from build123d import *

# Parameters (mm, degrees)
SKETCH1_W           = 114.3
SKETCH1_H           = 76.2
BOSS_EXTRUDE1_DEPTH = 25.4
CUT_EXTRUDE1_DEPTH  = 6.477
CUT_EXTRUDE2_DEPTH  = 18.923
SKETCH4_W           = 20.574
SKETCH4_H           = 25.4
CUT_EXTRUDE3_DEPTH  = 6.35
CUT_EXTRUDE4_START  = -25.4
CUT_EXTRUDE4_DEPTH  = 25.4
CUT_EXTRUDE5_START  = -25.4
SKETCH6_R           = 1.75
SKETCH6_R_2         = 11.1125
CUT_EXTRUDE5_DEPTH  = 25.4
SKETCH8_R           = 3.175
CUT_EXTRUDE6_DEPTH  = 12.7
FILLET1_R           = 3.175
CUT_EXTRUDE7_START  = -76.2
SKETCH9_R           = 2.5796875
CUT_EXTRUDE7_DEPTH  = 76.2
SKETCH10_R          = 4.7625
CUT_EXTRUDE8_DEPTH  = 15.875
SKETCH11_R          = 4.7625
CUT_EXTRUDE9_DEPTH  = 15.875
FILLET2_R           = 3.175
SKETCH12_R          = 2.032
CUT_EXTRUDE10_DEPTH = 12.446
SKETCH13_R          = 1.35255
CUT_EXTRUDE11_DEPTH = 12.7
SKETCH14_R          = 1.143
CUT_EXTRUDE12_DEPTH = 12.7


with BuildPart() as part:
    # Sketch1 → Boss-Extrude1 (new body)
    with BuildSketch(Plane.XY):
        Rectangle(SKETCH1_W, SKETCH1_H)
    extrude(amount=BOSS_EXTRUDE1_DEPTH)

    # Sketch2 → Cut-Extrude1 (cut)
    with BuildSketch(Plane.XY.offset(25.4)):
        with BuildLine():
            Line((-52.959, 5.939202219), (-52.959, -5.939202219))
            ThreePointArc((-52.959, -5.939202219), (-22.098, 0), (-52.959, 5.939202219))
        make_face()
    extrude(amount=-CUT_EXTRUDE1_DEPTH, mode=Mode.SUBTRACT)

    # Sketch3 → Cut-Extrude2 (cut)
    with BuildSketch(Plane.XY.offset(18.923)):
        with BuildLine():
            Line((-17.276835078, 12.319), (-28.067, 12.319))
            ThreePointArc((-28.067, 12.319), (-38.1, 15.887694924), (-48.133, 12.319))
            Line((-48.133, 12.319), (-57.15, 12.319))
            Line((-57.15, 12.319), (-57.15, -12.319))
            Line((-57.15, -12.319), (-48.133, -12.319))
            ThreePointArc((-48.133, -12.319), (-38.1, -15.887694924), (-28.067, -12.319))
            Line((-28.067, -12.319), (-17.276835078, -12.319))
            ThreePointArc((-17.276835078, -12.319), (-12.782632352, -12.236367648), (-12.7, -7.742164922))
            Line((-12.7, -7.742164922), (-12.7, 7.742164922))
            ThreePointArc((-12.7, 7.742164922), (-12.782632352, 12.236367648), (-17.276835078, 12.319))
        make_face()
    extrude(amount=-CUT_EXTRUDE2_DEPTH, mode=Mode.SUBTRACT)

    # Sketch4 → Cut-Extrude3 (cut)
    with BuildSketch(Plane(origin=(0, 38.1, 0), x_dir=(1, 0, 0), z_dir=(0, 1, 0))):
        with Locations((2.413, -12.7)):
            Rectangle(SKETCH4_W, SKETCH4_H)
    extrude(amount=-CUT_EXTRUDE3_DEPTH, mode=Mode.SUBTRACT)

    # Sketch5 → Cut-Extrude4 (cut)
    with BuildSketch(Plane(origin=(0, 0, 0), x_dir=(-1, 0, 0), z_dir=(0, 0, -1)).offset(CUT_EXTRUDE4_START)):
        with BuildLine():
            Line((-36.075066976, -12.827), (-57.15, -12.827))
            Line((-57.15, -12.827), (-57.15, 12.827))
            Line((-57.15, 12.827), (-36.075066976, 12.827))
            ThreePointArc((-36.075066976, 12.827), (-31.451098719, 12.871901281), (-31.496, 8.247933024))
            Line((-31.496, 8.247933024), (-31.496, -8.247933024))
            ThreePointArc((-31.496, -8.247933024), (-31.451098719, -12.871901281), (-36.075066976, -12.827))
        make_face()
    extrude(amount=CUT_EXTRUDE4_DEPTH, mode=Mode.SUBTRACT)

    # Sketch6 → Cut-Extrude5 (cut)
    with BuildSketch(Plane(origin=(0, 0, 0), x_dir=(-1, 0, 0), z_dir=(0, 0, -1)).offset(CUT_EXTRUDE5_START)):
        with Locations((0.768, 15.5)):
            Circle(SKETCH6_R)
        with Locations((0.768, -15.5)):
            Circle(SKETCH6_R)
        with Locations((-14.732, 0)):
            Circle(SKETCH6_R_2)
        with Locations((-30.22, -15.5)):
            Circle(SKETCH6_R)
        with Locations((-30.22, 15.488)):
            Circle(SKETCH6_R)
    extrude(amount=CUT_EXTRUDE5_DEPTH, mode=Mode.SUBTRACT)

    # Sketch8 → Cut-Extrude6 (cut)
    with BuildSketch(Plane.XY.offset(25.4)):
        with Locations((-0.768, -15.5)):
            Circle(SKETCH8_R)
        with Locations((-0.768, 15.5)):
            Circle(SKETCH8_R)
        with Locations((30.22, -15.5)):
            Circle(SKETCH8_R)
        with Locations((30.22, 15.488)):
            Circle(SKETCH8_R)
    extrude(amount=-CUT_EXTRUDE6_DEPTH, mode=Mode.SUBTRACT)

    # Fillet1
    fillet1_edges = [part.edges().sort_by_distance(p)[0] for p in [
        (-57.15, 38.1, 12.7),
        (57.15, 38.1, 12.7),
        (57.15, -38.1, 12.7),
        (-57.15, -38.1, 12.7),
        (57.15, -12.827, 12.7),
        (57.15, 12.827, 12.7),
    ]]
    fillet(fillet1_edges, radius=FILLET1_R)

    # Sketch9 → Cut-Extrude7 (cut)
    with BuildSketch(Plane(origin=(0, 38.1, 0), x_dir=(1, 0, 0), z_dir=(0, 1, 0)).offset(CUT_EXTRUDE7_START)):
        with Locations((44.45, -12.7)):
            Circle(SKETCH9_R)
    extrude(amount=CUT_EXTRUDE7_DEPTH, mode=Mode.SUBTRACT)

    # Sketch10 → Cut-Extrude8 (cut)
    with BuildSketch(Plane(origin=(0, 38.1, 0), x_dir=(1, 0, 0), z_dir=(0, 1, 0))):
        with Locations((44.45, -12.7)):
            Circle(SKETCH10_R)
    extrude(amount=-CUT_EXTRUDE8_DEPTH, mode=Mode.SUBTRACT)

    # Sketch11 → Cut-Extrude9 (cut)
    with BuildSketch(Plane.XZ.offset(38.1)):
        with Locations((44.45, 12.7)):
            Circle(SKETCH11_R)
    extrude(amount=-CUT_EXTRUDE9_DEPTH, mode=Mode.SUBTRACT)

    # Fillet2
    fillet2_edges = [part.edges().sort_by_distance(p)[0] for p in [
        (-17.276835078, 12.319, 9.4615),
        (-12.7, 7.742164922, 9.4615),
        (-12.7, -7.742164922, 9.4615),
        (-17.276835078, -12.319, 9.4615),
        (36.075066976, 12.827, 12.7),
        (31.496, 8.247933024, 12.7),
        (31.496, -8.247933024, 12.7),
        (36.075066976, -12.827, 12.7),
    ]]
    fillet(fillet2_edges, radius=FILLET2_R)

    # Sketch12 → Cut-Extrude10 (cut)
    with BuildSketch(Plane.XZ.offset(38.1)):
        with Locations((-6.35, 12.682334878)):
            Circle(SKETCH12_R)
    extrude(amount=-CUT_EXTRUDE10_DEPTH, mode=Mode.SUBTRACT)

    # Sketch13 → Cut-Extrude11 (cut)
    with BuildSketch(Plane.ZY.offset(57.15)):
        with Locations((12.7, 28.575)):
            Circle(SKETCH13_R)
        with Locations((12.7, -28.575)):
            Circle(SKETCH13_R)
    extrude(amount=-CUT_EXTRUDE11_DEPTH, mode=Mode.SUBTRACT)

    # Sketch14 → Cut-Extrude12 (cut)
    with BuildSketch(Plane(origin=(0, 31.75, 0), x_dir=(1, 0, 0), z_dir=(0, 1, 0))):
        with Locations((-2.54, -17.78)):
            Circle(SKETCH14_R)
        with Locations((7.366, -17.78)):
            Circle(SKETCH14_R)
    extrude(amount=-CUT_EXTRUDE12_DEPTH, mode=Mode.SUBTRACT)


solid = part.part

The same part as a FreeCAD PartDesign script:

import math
import FreeCAD as App
import Part
import Sketcher

V = App.Vector
Q = App.Units.Quantity


def edges_at(feature, points):
    """Names of the edges that pass closest to the given points."""
    edges = feature.Shape.Edges
    near = lambda p: min(range(len(edges)), key=lambda i: edges[i].distToShape(Part.Vertex(*p))[0])
    return sorted({f"Edge{near(p) + 1}" for p in points})

doc = App.newDocument("Part")
body = doc.addObject("PartDesign::Body", "Body")

# Sketch on XY plane
sketch1 = body.newObject("Sketcher::SketchObject", "Sketch")
sketch1.AttachmentSupport = (doc.getObject("XY_Plane"), [""])
sketch1.MapMode = "FlatFace"
sketch1.addGeometry([
    Part.LineSegment(V(-57, 38, 0), V(-57, -38, 0)),
    Part.LineSegment(V(-57, -38, 0), V(57, -38, 0)),
    Part.LineSegment(V(57, -38, 0), V(57, 38, 0)),
    Part.LineSegment(V(57, 38, 0), V(-57, 38, 0)),
], False)
sketch1.addConstraint([
    Sketcher.Constraint("Coincident", 0, 2, 1, 1),
    Sketcher.Constraint("Coincident", 1, 2, 2, 1),
    Sketcher.Constraint("Coincident", 2, 2, 3, 1),
    Sketcher.Constraint("Coincident", 3, 2, 0, 1),
    Sketcher.Constraint("Vertical", 0),
    Sketcher.Constraint("Horizontal", 1),
    Sketcher.Constraint("Vertical", 2),
    Sketcher.Constraint("Horizontal", 3),
    Sketcher.Constraint("Symmetric", 0, 2, 2, 2, -1, 1),
    Sketcher.Constraint("DistanceY", 0, 2, 0, 1, Q("3 in")),
    Sketcher.Constraint("DistanceX", 1, 1, 1, 2, Q("4.5 in")),
])
pad1 = body.newObject("PartDesign::Pad", "Pad")
pad1.Profile = sketch1
pad1.Length = Q("1 in")

# Sketch on XY plane
sketch2 = body.newObject("Sketcher::SketchObject", "Sketch001")
sketch2.AttachmentSupport = (doc.getObject("XY_Plane"), [""])
sketch2.MapMode = "FlatFace"
sketch2.AttachmentOffset = App.Placement(V(0, 0, 1 * 25.4), App.Rotation())
sketch2.addGeometry([
    Part.LineSegment(V(-53, 6, 0), V(-53, -6, 0)),
    Part.ArcOfCircle(Part.Circle(V(-38, 0, 0), V(0, 0, 1), 16), math.radians(-158), math.radians(158)),
], False)
sketch2.addConstraint([
    Sketcher.Constraint("Coincident", 0, 1, 1, 2),
    Sketcher.Constraint("Coincident", 1, 1, 0, 2),
    Sketcher.Constraint("Vertical", 0),
    Sketcher.Constraint("PointOnObject", 1, 3, -1),
    Sketcher.Constraint("Radius", 1, Q("0.63 in")),
    Sketcher.Constraint("DistanceX", 1, 3, -1, 1, Q("1.5 in")),
    Sketcher.Constraint("DistanceX", 0, 1, -1, 1, Q("2.085 in")),
])
pocket1 = body.newObject("PartDesign::Pocket", "Pocket")
pocket1.Profile = sketch2
pocket1.Length = Q("0.255 in")

# Sketch on XY plane
sketch3 = body.newObject("Sketcher::SketchObject", "Sketch002")
sketch3.AttachmentSupport = (doc.getObject("XY_Plane"), [""])
sketch3.MapMode = "FlatFace"
sketch3.AttachmentOffset = App.Placement(V(0, 0, 0.745 * 25.4), App.Rotation())
sketch3.addGeometry([
    Part.LineSegment(V(-17.3, 12.3, 0), V(-28.1, 12.3, 0)),  # 0
    Part.ArcOfCircle(Part.Circle(V(-38.1, 0, 0), V(0, 0, 1), 15.9), math.radians(51), math.radians(129)),  # 1
    Part.LineSegment(V(-48.1, 12.3, 0), V(-57.1, 12.3, 0)),  # 2
    Part.LineSegment(V(-57.1, 12.3, 0), V(-57.1, -12.3, 0)),  # 3
    Part.LineSegment(V(-57.1, -12.3, 0), V(-48.1, -12.3, 0)),  # 4
    Part.ArcOfCircle(Part.Circle(V(-38.1, 0, 0), V(0, 0, 1), 15.9), math.radians(-129), math.radians(-51)),  # 5
    Part.LineSegment(V(-28.1, -12.3, 0), V(-17.3, -12.3, 0)),  # 6
    Part.ArcOfCircle(Part.Circle(V(-15.1, -9.9, 0), V(0, 0, 1), 3.2), math.radians(-133), math.radians(43)),  # 7
    Part.LineSegment(V(-12.7, -7.7, 0), V(-12.7, 7.7, 0)),  # 8
    Part.ArcOfCircle(Part.Circle(V(-15.1, 9.9, 0), V(0, 0, 1), 3.2), math.radians(-43), math.radians(133)),  # 9
], False)
sketch3.addConstraint([
    Sketcher.Constraint("Coincident", 0, 2, 1, 1),
    Sketcher.Constraint("Coincident", 1, 2, 2, 1),
    Sketcher.Constraint("Coincident", 2, 2, 3, 1),
    Sketcher.Constraint("Coincident", 3, 2, 4, 1),
    Sketcher.Constraint("Coincident", 4, 2, 5, 1),
    Sketcher.Constraint("Coincident", 5, 2, 6, 1),
    Sketcher.Constraint("Coincident", 6, 2, 7, 1),
    Sketcher.Constraint("Coincident", 7, 2, 8, 1),
    Sketcher.Constraint("Coincident", 8, 2, 9, 1),
    Sketcher.Constraint("Coincident", 9, 2, 0, 1),
    Sketcher.Constraint("Horizontal", 0),
    Sketcher.Constraint("Horizontal", 2),
    Sketcher.Constraint("Vertical", 3),
    Sketcher.Constraint("Horizontal", 4),
    Sketcher.Constraint("Horizontal", 6),
    Sketcher.Constraint("Vertical", 8),
    Sketcher.Constraint("Coincident", 5, 3, 1, 3),
    Sketcher.Constraint("Equal", 1, 5),
    Sketcher.Constraint("Equal", 7, 9),
    Sketcher.Constraint("Symmetric", 7, 3, 9, 3, -1),
    Sketcher.Constraint("Symmetric", 1, 2, 4, 2, -1),
    Sketcher.Constraint("Horizontal", 0, 2, 1, 2),
    Sketcher.Constraint("Horizontal", 4, 2, 5, 2),
    Sketcher.Constraint("DistanceY", 3, 2, 3, 1, Q("0.97 in")),
    Sketcher.Constraint("DistanceX", 1, 3, -1, 1, Q("1.5 in")),
    Sketcher.Constraint("DistanceX", 7, 2, -1, 1, Q("0.5 in")),
    Sketcher.Constraint("Radius", 1, Q("0.6254998 in")),
    Sketcher.Constraint("Radius", 7, Q("0.1275 in")),
    Sketcher.Constraint("DistanceX", 2, 2, 2, 1, Q("0.355 in")),
    Sketcher.Constraint("DistanceY", 8, 1, 8, 2, 15.48433),
    Sketcher.Constraint("DistanceX", 0, 2, 0, 1, 10.790165),
])
pocket2 = body.newObject("PartDesign::Pocket", "Pocket001")
pocket2.Profile = sketch3
pocket2.Length = Q("0.745 in")

# Sketch on XZ plane
sketch4 = body.newObject("Sketcher::SketchObject", "Sketch003")
sketch4.AttachmentSupport = (doc.getObject("XZ_Plane"), [""])
sketch4.MapMode = "FlatFace"
sketch4.AttachmentOffset = App.Placement(V(0, 0, -1.5 * 25.4), App.Rotation())
sketch4.addGeometry([
    Part.LineSegment(V(-8, 0, 0), V(-8, 25, 0)),
    Part.LineSegment(V(-8, 25, 0), V(13, 25, 0)),
    Part.LineSegment(V(13, 25, 0), V(13, 0, 0)),
    Part.LineSegment(V(13, 0, 0), V(-8, 0, 0)),
], False)
sketch4.addConstraint([
    Sketcher.Constraint("Coincident", 0, 2, 1, 1),
    Sketcher.Constraint("Coincident", 1, 2, 2, 1),
    Sketcher.Constraint("Coincident", 2, 2, 3, 1),
    Sketcher.Constraint("Coincident", 3, 2, 0, 1),
    Sketcher.Constraint("Vertical", 0),
    Sketcher.Constraint("Horizontal", 1),
    Sketcher.Constraint("Vertical", 2),
    Sketcher.Constraint("Horizontal", 3),
    Sketcher.Constraint("PointOnObject", 2, 2, -1),
    Sketcher.Constraint("DistanceY", 0, 1, 0, 2, Q("1 in")),
    Sketcher.Constraint("DistanceX", 1, 1, 1, 2, Q("0.81 in")),
    Sketcher.Constraint("DistanceX", -1, 1, 1, 2, Q("0.5 in")),
])
pocket3 = body.newObject("PartDesign::Pocket", "Pocket002")
pocket3.Profile = sketch4
pocket3.Length = Q("0.25 in")
pocket3.Reversed = True

# Sketch on XY plane
sketch5 = body.newObject("Sketcher::SketchObject", "Sketch004")
sketch5.AttachmentSupport = (doc.getObject("XY_Plane"), [""])
sketch5.MapMode = "FlatFace"
sketch5.AttachmentOffset = App.Placement(V(0, 0, 1 * 25.4), App.Rotation())
sketch5.addGeometry([
    Part.LineSegment(V(57.1, -12.8, 0), V(36.1, -12.8, 0)),  # 0
    Part.ArcOfCircle(Part.Circle(V(33.7, -10.6, 0), V(0, 0, 1), 3.2), math.radians(134), math.radians(316)),  # 1
    Part.LineSegment(V(31.5, -8.2, 0), V(31.5, 8.2, 0)),  # 2
    Part.ArcOfCircle(Part.Circle(V(33.7, 10.6, 0), V(0, 0, 1), 3.2), math.radians(44), math.radians(226)),  # 3
    Part.LineSegment(V(36.1, 12.8, 0), V(57.1, 12.8, 0)),  # 4
    Part.LineSegment(V(57.1, 12.8, 0), V(57.1, -12.8, 0)),  # 5
], False)
sketch5.addConstraint([
    Sketcher.Constraint("Coincident", 0, 2, 1, 2),
    Sketcher.Constraint("Coincident", 1, 1, 2, 1),
    Sketcher.Constraint("Coincident", 2, 2, 3, 2),
    Sketcher.Constraint("Coincident", 3, 1, 4, 1),
    Sketcher.Constraint("Coincident", 4, 2, 5, 1),
    Sketcher.Constraint("Coincident", 5, 2, 0, 1),
    Sketcher.Constraint("Horizontal", 0),
    Sketcher.Constraint("Vertical", 2),
    Sketcher.Constraint("Horizontal", 4),
    Sketcher.Constraint("Vertical", 5),
    Sketcher.Constraint("Equal", 1, 3),
    Sketcher.Constraint("Symmetric", 1, 3, 3, 3, -1),
    Sketcher.Constraint("Vertical", 0, 2, 3, 1),
    Sketcher.Constraint("DistanceY", 5, 2, 5, 1, Q("1.01 in")),
    Sketcher.Constraint("Radius", 1, Q("0.1275 in")),
    Sketcher.Constraint("DistanceX", -1, 1, 1, 1, Q("1.24 in")),
    Sketcher.Constraint("DistanceX", -1, 1, 4, 2, Q("2.25 in")),
    Sketcher.Constraint("DistanceX", 0, 2, 0, 1, 21.074933),
    Sketcher.Constraint("DistanceY", 2, 1, 2, 2, 16.495866),
])
pocket4 = body.newObject("PartDesign::Pocket", "Pocket003")
pocket4.Profile = sketch5
pocket4.Length = Q("1 in")

# Sketch on XY plane
sketch6 = body.newObject("Sketcher::SketchObject", "Sketch005")
sketch6.AttachmentSupport = (doc.getObject("XY_Plane"), [""])
sketch6.MapMode = "FlatFace"
sketch6.AttachmentOffset = App.Placement(V(0, 0, 1 * 25.4), App.Rotation())
sketch6.addGeometry([
    Part.Circle(V(-0.8, 15.5, 0), V(0, 0, 1), 1.8),  # 0
    Part.Circle(V(-0.8, -15.5, 0), V(0, 0, 1), 1.8),  # 1
    Part.Circle(V(14.7, 0, 0), V(0, 0, 1), 11.1),  # 2
    Part.Circle(V(30.2, -15.5, 0), V(0, 0, 1), 1.8),  # 3
    Part.Circle(V(30.2, 15.5, 0), V(0, 0, 1), 1.8),  # 4
], False)
sketch6.addConstraint([
    Sketcher.Constraint("Equal", 0, 1),
    Sketcher.Constraint("Equal", 1, 3),
    Sketcher.Constraint("Equal", 3, 4),
    Sketcher.Constraint("Symmetric", 0, 3, 1, 3, -1),
    Sketcher.Constraint("PointOnObject", 2, 3, -1),
    Sketcher.Constraint("Horizontal", 1, 3, 3, 3),
    Sketcher.Constraint("Vertical", 3, 3, 4, 3),
    Sketcher.Constraint("Diameter", 2, Q("0.875 in")),
    Sketcher.Constraint("Diameter", 0, 3.5),
    Sketcher.Constraint("DistanceX", -1, 1, 2, 3, Q("0.58 in")),
    Sketcher.Constraint("DistanceX", 1, 3, 3, 3, Q("1.22 in")),
    Sketcher.Constraint("DistanceY", 3, 3, 4, 3, Q("1.22 in")),
    Sketcher.Constraint("DistanceX", 0, 3, -1, 1, 0.768),
    Sketcher.Constraint("DistanceY", -1, 1, 0, 3, 15.5),
])
pocket5 = body.newObject("PartDesign::Pocket", "Pocket004")
pocket5.Profile = sketch6
pocket5.Length = Q("1 in")

# Sketch on XY plane
sketch7 = body.newObject("Sketcher::SketchObject", "Sketch006")
sketch7.AttachmentSupport = (doc.getObject("XY_Plane"), [""])
sketch7.MapMode = "FlatFace"
sketch7.AttachmentOffset = App.Placement(V(0, 0, 1 * 25.4), App.Rotation())
sketch7.addGeometry([
    Part.Circle(V(-0.8, -15.5, 0), V(0, 0, 1), 3.2),
    Part.Circle(V(-0.8, 15.5, 0), V(0, 0, 1), 3.2),
    Part.Circle(V(30.2, -15.5, 0), V(0, 0, 1), 3.2),
    Part.Circle(V(30.2, 15.5, 0), V(0, 0, 1), 3.2),
], False)
sketch7.addConstraint([
    Sketcher.Constraint("Equal", 0, 1),
    Sketcher.Constraint("Equal", 1, 2),
    Sketcher.Constraint("Equal", 2, 3),
    Sketcher.Constraint("Symmetric", 0, 3, 1, 3, -1),
    Sketcher.Constraint("Horizontal", 0, 3, 2, 3),
    Sketcher.Constraint("Vertical", 2, 3, 3, 3),
    Sketcher.Constraint("Diameter", 0, Q("0.25 in")),
    Sketcher.Constraint("DistanceX", 0, 3, 2, 3, Q("1.22 in")),
    Sketcher.Constraint("DistanceY", 2, 3, 3, 3, Q("1.22 in")),
    Sketcher.Constraint("DistanceX", 0, 3, -1, 1, 0.768),
    Sketcher.Constraint("DistanceY", 0, 3, -1, 1, 15.5),
])
pocket6 = body.newObject("PartDesign::Pocket", "Pocket005")
pocket6.Profile = sketch7
pocket6.Length = Q("0.5 in")
doc.recompute()

fillet = body.newObject("PartDesign::Fillet", "Fillet")
fillet.Base = (pocket6, edges_at(pocket6, [
    (-57.15, 38.1, 12.7),
    (57.15, 38.1, 12.7),
    (57.15, -38.1, 12.7),
    (-57.15, -38.1, 12.7),
    (57.15, -12.827, 12.7),
    (57.15, 12.827, 12.7),
]))
fillet.Radius = Q("0.125 in")

# Sketch on XZ plane
sketch8 = body.newObject("Sketcher::SketchObject", "Sketch007")
sketch8.AttachmentSupport = (doc.getObject("XZ_Plane"), [""])
sketch8.MapMode = "FlatFace"
sketch8.AttachmentOffset = App.Placement(V(0, 0, 1.5 * 25.4), App.Rotation())
sketch8.addGeometry(Part.Circle(V(44.5, 12.7, 0), V(0, 0, 1), 2.6), False)
sketch8.addConstraint([
    Sketcher.Constraint("Diameter", 0, Q("0.203125 in")),
    Sketcher.Constraint("DistanceY", -1, 1, 0, 3, Q("0.5 in")),
    Sketcher.Constraint("DistanceX", -1, 1, 0, 3, Q("1.75 in")),
])
pocket7 = body.newObject("PartDesign::Pocket", "Pocket006")
pocket7.Profile = sketch8
pocket7.Length = Q("3 in")

# Sketch on XZ plane
sketch9 = body.newObject("Sketcher::SketchObject", "Sketch008")
sketch9.AttachmentSupport = (doc.getObject("XZ_Plane"), [""])
sketch9.MapMode = "FlatFace"
sketch9.AttachmentOffset = App.Placement(V(0, 0, -1.5 * 25.4), App.Rotation())
sketch9.addGeometry(Part.Circle(V(44.5, 12.7, 0), V(0, 0, 1), 4.8), False)
sketch9.addConstraint([
    Sketcher.Constraint("Diameter", 0, Q("0.375 in")),
    Sketcher.Constraint("DistanceY", -1, 1, 0, 3, Q("0.5 in")),
    Sketcher.Constraint("DistanceX", -1, 1, 0, 3, Q("1.75 in")),
])
pocket8 = body.newObject("PartDesign::Pocket", "Pocket007")
pocket8.Profile = sketch9
pocket8.Length = Q("0.625 in")
pocket8.Reversed = True

# Sketch on XZ plane
sketch10 = body.newObject("Sketcher::SketchObject", "Sketch009")
sketch10.AttachmentSupport = (doc.getObject("XZ_Plane"), [""])
sketch10.MapMode = "FlatFace"
sketch10.AttachmentOffset = App.Placement(V(0, 0, 1.5 * 25.4), App.Rotation())
sketch10.addGeometry(Part.Circle(V(44.5, 12.7, 0), V(0, 0, 1), 4.8), False)
sketch10.addConstraint([
    Sketcher.Constraint("Diameter", 0, Q("0.375 in")),
    Sketcher.Constraint("DistanceY", -1, 1, 0, 3, Q("0.5 in")),
    Sketcher.Constraint("DistanceX", -1, 1, 0, 3, Q("1.75 in")),
])
pocket9 = body.newObject("PartDesign::Pocket", "Pocket008")
pocket9.Profile = sketch10
pocket9.Length = Q("0.625 in")
doc.recompute()

fillet2 = body.newObject("PartDesign::Fillet", "Fillet001")
fillet2.Base = (pocket9, edges_at(pocket9, [
    (-17.277, 12.319, 9.461),
    (-12.7, 7.742, 9.461),
    (-12.7, -7.742, 9.461),
    (-17.277, -12.319, 9.461),
    (36.075, 12.827, 12.7),
    (31.496, 8.248, 12.7),
    (31.496, -8.248, 12.7),
    (36.075, -12.827, 12.7),
]))
fillet2.Radius = Q("0.125 in")

# Sketch on XZ plane
sketch11 = body.newObject("Sketcher::SketchObject", "Sketch010")
sketch11.AttachmentSupport = (doc.getObject("XZ_Plane"), [""])
sketch11.MapMode = "FlatFace"
sketch11.AttachmentOffset = App.Placement(V(0, 0, 1.5 * 25.4), App.Rotation())
sketch11.addGeometry(Part.Circle(V(-6.3, 12.7, 0), V(0, 0, 1), 2), False)
sketch11.addConstraint([
    Sketcher.Constraint("Diameter", 0, Q("0.16 in")),
    Sketcher.Constraint("DistanceX", 0, 3, -1, 1, Q("0.25 in")),
    Sketcher.Constraint("DistanceY", -1, 1, 0, 3, 12.682335),
])
pocket10 = body.newObject("PartDesign::Pocket", "Pocket009")
pocket10.Profile = sketch11
pocket10.Length = Q("0.49 in")

# Sketch on YZ plane
sketch12 = body.newObject("Sketcher::SketchObject", "Sketch011")
sketch12.AttachmentSupport = (doc.getObject("YZ_Plane"), [""])
sketch12.MapMode = "FlatFace"
sketch12.AttachmentOffset = App.Placement(V(0, 0, -2.25 * 25.4), App.Rotation())
sketch12.addGeometry([
    Part.Circle(V(28.6, 12.7, 0), V(0, 0, 1), 1.4),
    Part.Circle(V(-28.6, 12.7, 0), V(0, 0, 1), 1.4),
], False)
sketch12.addConstraint([
    Sketcher.Constraint("Equal", 0, 1),
    Sketcher.Constraint("Symmetric", 0, 3, 1, 3, -2),
    Sketcher.Constraint("Diameter", 0, Q("0.1065 in")),
    Sketcher.Constraint("DistanceY", -1, 1, 0, 3, Q("0.5 in")),
    Sketcher.Constraint("DistanceX", 1, 3, 0, 3, Q("2.25 in")),
])
pocket11 = body.newObject("PartDesign::Pocket", "Pocket010")
pocket11.Profile = sketch12
pocket11.Length = Q("0.5 in")
pocket11.Reversed = True

# Sketch on XZ plane
sketch13 = body.newObject("Sketcher::SketchObject", "Sketch012")
sketch13.AttachmentSupport = (doc.getObject("XZ_Plane"), [""])
sketch13.MapMode = "FlatFace"
sketch13.AttachmentOffset = App.Placement(V(0, 0, -1.25 * 25.4), App.Rotation())
sketch13.addGeometry([
    Part.Circle(V(-2.5, 17.8, 0), V(0, 0, 1), 1.1),
    Part.Circle(V(7.4, 17.8, 0), V(0, 0, 1), 1.1),
], False)
sketch13.addConstraint([
    Sketcher.Constraint("Equal", 0, 1),
    Sketcher.Constraint("Horizontal", 0, 3, 1, 3),
    Sketcher.Constraint("Diameter", 0, Q("0.09 in")),
    Sketcher.Constraint("DistanceX", 0, 3, -1, 1, Q("0.1 in")),
    Sketcher.Constraint("DistanceY", -1, 1, 0, 3, Q("0.7 in")),
    Sketcher.Constraint("DistanceX", -1, 1, 1, 3, Q("0.29 in")),
])
pocket12 = body.newObject("PartDesign::Pocket", "Pocket011")
pocket12.Profile = sketch13
pocket12.Length = Q("0.5 in")
pocket12.Reversed = True

doc.recompute()
